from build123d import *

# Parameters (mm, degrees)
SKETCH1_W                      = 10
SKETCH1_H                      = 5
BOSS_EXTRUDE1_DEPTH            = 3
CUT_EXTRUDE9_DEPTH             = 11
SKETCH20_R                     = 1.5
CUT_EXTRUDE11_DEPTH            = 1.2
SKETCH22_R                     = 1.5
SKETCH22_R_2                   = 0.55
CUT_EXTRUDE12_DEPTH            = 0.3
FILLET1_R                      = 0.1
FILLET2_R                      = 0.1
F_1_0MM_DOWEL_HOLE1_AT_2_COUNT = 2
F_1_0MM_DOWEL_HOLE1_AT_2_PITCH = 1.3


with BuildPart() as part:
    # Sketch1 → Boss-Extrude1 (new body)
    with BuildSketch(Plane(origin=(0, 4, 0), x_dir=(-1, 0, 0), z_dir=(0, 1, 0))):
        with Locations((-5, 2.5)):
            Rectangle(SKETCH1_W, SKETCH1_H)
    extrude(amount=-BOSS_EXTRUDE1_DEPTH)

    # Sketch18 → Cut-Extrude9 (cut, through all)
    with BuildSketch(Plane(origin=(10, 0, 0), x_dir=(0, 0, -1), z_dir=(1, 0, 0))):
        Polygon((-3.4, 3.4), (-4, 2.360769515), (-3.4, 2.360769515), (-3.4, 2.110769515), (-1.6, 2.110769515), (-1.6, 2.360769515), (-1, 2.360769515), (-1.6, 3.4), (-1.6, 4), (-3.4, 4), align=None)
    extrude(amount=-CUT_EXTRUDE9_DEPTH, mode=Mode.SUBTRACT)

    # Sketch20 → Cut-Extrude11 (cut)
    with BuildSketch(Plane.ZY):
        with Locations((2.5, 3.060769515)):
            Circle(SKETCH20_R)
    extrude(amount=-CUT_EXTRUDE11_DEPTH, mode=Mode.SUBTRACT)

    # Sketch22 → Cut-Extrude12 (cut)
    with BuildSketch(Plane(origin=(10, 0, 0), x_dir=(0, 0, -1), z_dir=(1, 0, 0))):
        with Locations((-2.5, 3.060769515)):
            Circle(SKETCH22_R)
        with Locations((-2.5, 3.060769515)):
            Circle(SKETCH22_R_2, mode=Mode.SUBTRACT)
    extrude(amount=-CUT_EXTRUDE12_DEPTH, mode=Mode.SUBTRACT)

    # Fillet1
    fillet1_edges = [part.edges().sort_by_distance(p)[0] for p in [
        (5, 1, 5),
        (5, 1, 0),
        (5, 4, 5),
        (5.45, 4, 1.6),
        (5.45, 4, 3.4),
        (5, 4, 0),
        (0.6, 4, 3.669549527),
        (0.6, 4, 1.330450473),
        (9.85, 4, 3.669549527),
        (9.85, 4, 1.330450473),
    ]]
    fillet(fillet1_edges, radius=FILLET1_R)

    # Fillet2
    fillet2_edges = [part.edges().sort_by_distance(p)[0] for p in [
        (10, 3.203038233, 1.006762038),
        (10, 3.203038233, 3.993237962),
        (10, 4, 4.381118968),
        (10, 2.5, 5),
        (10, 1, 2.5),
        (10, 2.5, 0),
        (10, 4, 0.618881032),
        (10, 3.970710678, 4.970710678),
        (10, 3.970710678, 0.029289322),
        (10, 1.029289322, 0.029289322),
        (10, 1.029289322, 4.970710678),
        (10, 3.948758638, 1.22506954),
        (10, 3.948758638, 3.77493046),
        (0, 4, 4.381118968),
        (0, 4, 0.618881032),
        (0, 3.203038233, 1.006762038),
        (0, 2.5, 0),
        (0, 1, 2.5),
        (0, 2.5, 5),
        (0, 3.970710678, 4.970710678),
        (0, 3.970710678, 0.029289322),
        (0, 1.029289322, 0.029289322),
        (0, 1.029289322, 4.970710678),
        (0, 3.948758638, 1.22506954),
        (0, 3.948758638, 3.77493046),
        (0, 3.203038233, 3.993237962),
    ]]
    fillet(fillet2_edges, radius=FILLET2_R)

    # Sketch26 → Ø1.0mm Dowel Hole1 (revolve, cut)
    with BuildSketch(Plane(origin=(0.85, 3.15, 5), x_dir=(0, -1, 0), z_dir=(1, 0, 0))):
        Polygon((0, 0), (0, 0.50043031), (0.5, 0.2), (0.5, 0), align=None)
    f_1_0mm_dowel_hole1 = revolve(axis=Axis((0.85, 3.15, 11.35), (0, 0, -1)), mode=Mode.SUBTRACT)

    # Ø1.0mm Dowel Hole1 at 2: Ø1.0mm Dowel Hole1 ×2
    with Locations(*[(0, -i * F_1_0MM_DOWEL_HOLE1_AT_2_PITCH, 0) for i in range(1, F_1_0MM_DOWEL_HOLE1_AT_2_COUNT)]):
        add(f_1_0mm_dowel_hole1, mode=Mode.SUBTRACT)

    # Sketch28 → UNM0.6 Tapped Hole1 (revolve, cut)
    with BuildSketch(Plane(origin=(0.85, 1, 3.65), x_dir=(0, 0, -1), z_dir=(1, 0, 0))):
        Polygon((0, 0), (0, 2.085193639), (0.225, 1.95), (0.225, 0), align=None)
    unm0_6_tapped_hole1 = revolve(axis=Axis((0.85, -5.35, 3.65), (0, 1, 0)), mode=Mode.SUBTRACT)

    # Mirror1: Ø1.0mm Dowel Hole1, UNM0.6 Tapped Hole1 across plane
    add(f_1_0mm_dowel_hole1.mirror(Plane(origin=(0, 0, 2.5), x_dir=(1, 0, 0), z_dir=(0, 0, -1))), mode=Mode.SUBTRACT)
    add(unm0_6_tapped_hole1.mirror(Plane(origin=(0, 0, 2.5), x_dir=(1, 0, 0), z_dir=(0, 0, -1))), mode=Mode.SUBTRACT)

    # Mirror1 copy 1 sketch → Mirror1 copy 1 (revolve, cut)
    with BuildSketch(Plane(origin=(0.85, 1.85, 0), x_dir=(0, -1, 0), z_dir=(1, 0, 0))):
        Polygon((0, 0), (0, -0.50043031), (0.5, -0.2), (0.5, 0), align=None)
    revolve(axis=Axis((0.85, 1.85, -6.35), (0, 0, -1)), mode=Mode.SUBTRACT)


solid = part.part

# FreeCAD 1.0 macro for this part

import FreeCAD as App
import Part
import Sketcher
from FreeCAD import Vector
Q = App.Units.Quantity


def edges_at(feature, points):
    """Names of the edges that pass closest to the given points."""
    edges = feature.Shape.Edges
    near = lambda p: min(range(len(edges)), key=lambda i: edges[i].distToShape(Part.Vertex(*p))[0])
    return sorted({f"Edge{near(p) + 1}" for p in points})


def add_polygon(sketch, points):
    """Adds a closed chain of lines whose ends are joined by coincident constraints."""
    first, n = sketch.GeometryCount, len(points)
    for a, b in zip(points, points[1:] + points[:1]):
        sketch.addGeometry(Part.LineSegment(App.Vector(*a, 0), App.Vector(*b, 0)), False)
    for i in range(n):
        sketch.addConstraint(Sketcher.Constraint("Coincident", first + i, 2, first + (i + 1) % n, 1))

doc = App.newDocument("Part")
body = doc.addObject("PartDesign::Body", "Body")

# Sketch on XZ plane
sketch1 = body.newObject("Sketcher::SketchObject", "Sketch")
sketch1.AttachmentSupport = (doc.getObject("XZ_Plane"), [""])
sketch1.MapMode = "FlatFace"
sketch1.AttachmentOffset = App.Placement(Vector(0, 0, -4), App.Rotation())
add_polygon(sketch1, [(10, 5), (10, 0), (0, 0), (0, 5)])  # lines 0-3
sketch1.addConstraint(Sketcher.Constraint("Vertical", 0))
sketch1.addConstraint(Sketcher.Constraint("Horizontal", 1))
sketch1.addConstraint(Sketcher.Constraint("Vertical", 2))
sketch1.addConstraint(Sketcher.Constraint("Horizontal", 3))
sketch1.addConstraint(Sketcher.Constraint("Coincident", 1, 2, -1, 1))
sketch1.addConstraint(Sketcher.Constraint("DistanceX", 1, 2, 1, 1, 10.0))
sketch1.addConstraint(Sketcher.Constraint("DistanceY", 0, 2, 0, 1, 5.0))
pad1 = body.newObject("PartDesign::Pad", "Pad")
pad1.Profile = sketch1
pad1.Length = 3

# Sketch on YZ plane
sketch2 = body.newObject("Sketcher::SketchObject", "Sketch001")
sketch2.AttachmentSupport = (doc.getObject("YZ_Plane"), [""])
sketch2.MapMode = "FlatFace"
sketch2.AttachmentOffset = App.Placement(Vector(0, 0, 10), App.Rotation())
add_polygon(sketch2, [(3.4, 3.4), (2.36077, 4), (2.36077, 3.4), (2.11077, 3.4), (2.11077, 1.6), (2.36077, 1.6), (2.36077, 1), (3.4, 1.6), (4, 1.6), (4, 3.4)])  # lines 0-9
sketch2.addConstraint(Sketcher.Constraint("Vertical", 1))
sketch2.addConstraint(Sketcher.Constraint("Horizontal", 2))
sketch2.addConstraint(Sketcher.Constraint("Vertical", 3))
sketch2.addConstraint(Sketcher.Constraint("Horizontal", 4))
sketch2.addConstraint(Sketcher.Constraint("Vertical", 5))
sketch2.addConstraint(Sketcher.Constraint("Horizontal", 7))
sketch2.addConstraint(Sketcher.Constraint("Vertical", 8))
sketch2.addConstraint(Sketcher.Constraint("Horizontal", 9))
sketch2.addConstraint(Sketcher.Constraint("Horizontal", 4, 2, 6, 2))
sketch2.addConstraint(Sketcher.Constraint("Horizontal", 2, 2, 8, 2))
sketch2.addConstraint(Sketcher.Constraint("Vertical", 1, 2, 4, 2))
sketch2.addConstraint(Sketcher.Constraint("Vertical", 6, 2, 9, 2))
sketch2.addConstraint(Sketcher.Constraint("Equal", 9, 1))
sketch2.addConstraint(Sketcher.Constraint("Equal", 1, 5))
sketch2.addConstraint(Sketcher.Constraint("Angle", 0, Q("150 deg")))
sketch2.addConstraint(Sketcher.Constraint("DistanceX", 7, 1, 7, 2, 0.6))
sketch2.addConstraint(Sketcher.Constraint("DistanceY", 3, 2, 3, 1, 1.8))
sketch2.addConstraint(Sketcher.Constraint("DistanceY", -1, 1, 0, 2, 4.0))
sketch2.addConstraint(Sketcher.Constraint("DistanceX", -1, 1, 7, 2, 4.0))
sketch2.addConstraint(Sketcher.Constraint("DistanceX", 2, 2, 2, 1, 0.25))
pocket1 = body.newObject("PartDesign::Pocket", "Pocket")
pocket1.Profile = sketch2
pocket1.Type = "ThroughAll"

# Sketch on YZ plane
sketch3 = body.newObject("Sketcher::SketchObject", "Sketch002")
sketch3.AttachmentSupport = (doc.getObject("YZ_Plane"), [""])
sketch3.MapMode = "FlatFace"
sketch3.addGeometry(Part.Circle(Vector(3.06077, 2.5, 0), Vector(0, 0, 1), 1.5), False)
sketch3.addConstraint(Sketcher.Constraint("Diameter", 0, 3.0))
sketch3.addConstraint(Sketcher.Constraint("DistanceY", -1, 1, 0, 3, 2.5))
sketch3.addConstraint(Sketcher.Constraint("DistanceX", -1, 1, 0, 3, 3.06077))
pocket2 = body.newObject("PartDesign::Pocket", "Pocket001")
pocket2.Profile = sketch3
pocket2.Length = 1.2
pocket2.Reversed = True

# Sketch on YZ plane
sketch4 = body.newObject("Sketcher::SketchObject", "Sketch003")
sketch4.AttachmentSupport = (doc.getObject("YZ_Plane"), [""])
sketch4.MapMode = "FlatFace"
sketch4.AttachmentOffset = App.Placement(Vector(0, 0, 10), App.Rotation())
sketch4.addGeometry(Part.Circle(Vector(3.06077, 2.5, 0), Vector(0, 0, 1), 1.5), False)
sketch4.addGeometry(Part.Circle(Vector(3.06077, 2.5, 0), Vector(0, 0, 1), 0.55), False)
sketch4.addConstraint(Sketcher.Constraint("Coincident", 1, 3, 0, 3))
sketch4.addConstraint(Sketcher.Constraint("Diameter", 0, 3.0))
sketch4.addConstraint(Sketcher.Constraint("Diameter", 1, 1.1))
sketch4.addConstraint(Sketcher.Constraint("DistanceY", -1, 1, 0, 3, 2.5))
sketch4.addConstraint(Sketcher.Constraint("DistanceX", -1, 1, 0, 3, 3.06077))
pocket3 = body.newObject("PartDesign::Pocket", "Pocket002")
pocket3.Profile = sketch4
pocket3.Length = 0.3
doc.recompute()

fillet = body.newObject("PartDesign::Fillet", "Fillet")
fillet.Base = (pocket3, edges_at(pocket3, [
    (5, 1, 5),
    (5, 1, 0),
    (5, 4, 5),
    (5.45, 4, 1.6),
    (5.45, 4, 3.4),
    (5, 4, 0),
    (0.6, 4, 3.67),
    (0.6, 4, 1.33),
    (9.85, 4, 3.67),
    (9.85, 4, 1.33),
]))
fillet.Radius = 0.1
doc.recompute()

fillet2 = body.newObject("PartDesign::Fillet", "Fillet001")
fillet2.Base = (fillet, edges_at(fillet, [
    (10, 3.203, 1.007),
    (10, 3.203, 3.993),
    (10, 4, 4.381),
    (10, 2.5, 5),
    (10, 1, 2.5),
    (10, 2.5, 0),
    (10, 4, 0.619),
    (10, 3.971, 4.971),
    (10, 3.971, 0.029),
    (10, 1.029, 0.029),
    (10, 1.029, 4.971),
    (10, 3.949, 1.225),
    (10, 3.949, 3.775),
    (0, 4, 4.381),
    (0, 4, 0.619),
    (0, 3.203, 1.007),
    (0, 2.5, 0),
    (0, 1, 2.5),
    (0, 2.5, 5),
    (0, 3.971, 4.971),
    (0, 3.971, 0.029),
    (0, 1.029, 0.029),
    (0, 1.029, 4.971),
    (0, 3.949, 1.225),
    (0, 3.949, 3.775),
    (0, 3.203, 3.993),
]))
fillet2.Radius = 0.1

# Sketch on YZ plane
sketch5 = body.newObject("Sketcher::SketchObject", "Sketch004")
sketch5.AttachmentSupport = (doc.getObject("YZ_Plane"), [""])
sketch5.MapMode = "FlatFace"
sketch5.AttachmentOffset = App.Placement(Vector(0, 0, 0.85), App.Rotation())
add_polygon(sketch5, [(3.15, 4.49957), (3.15, 5), (2.65, 5), (2.65, 4.8)])  # lines 0-3
sketch5.addGeometry(Part.LineSegment(Vector(3.15, 5, 0), Vector(3.15, 4.49957, 0)), True)  # axis
sketch5.addConstraint(Sketcher.Constraint("Vertical", 0))
sketch5.addConstraint(Sketcher.Constraint("Horizontal", 1))
sketch5.addConstraint(Sketcher.Constraint("Vertical", 2))
sketch5.addConstraint(Sketcher.Constraint("Vertical", 4))
sketch5.addConstraint(Sketcher.Constraint("Coincident", 4, 1, 0, 2))
sketch5.addConstraint(Sketcher.Constraint("Equal", 0, 4))
sketch5.addConstraint(Sketcher.Constraint("Angle", 3, Q("-31 deg")))
sketch5.addConstraint(Sketcher.Constraint("DistanceX", 1, 2, 1, 1, 0.5))
sketch5.addConstraint(Sketcher.Constraint("DistanceY", 2, 2, 2, 1, 0.2))
sketch5.addConstraint(Sketcher.Constraint("DistanceY", -1, 1, 0, 2, 5.0))
sketch5.addConstraint(Sketcher.Constraint("DistanceX", -1, 1, 0, 2, 3.15))
groove = body.newObject("PartDesign::Groove", "Groove")
groove.Profile = sketch5
groove.ReferenceAxis = (sketch5, ["Axis0"])
groove.Angle = 360
doc.recompute()

linearpattern = body.newObject("PartDesign::LinearPattern", "LinearPattern")
linearpattern.Originals = [groove]
linearpattern.Direction = (doc.getObject("Y_Axis"), [""])
linearpattern.Mode = "offset"
linearpattern.Offset = 1.3
linearpattern.Occurrences = 2
linearpattern.Reversed = True
body.Tip = linearpattern

# Sketch on YZ plane
sketch6 = body.newObject("Sketcher::SketchObject", "Sketch005")
sketch6.AttachmentSupport = (doc.getObject("YZ_Plane"), [""])
sketch6.MapMode = "FlatFace"
sketch6.AttachmentOffset = App.Placement(Vector(0, 0, 0.85), App.Rotation())
add_polygon(sketch6, [(3.085194, 3.65), (1, 3.65), (1, 3.425), (2.95, 3.425)])  # lines 0-3
sketch6.addGeometry(Part.LineSegment(Vector(1, 3.65, 0), Vector(3.085194, 3.65, 0)), True)  # axis
sketch6.addConstraint(Sketcher.Constraint("Horizontal", 0))
sketch6.addConstraint(Sketcher.Constraint("Vertical", 1))
sketch6.addConstraint(Sketcher.Constraint("Horizontal", 2))
sketch6.addConstraint(Sketcher.Constraint("Horizontal", 4))
sketch6.addConstraint(Sketcher.Constraint("Coincident", 4, 1, 0, 2))
sketch6.addConstraint(Sketcher.Constraint("Equal", 0, 4))
sketch6.addConstraint(Sketcher.Constraint("Angle", 3, Q("59 deg")))
sketch6.addConstraint(Sketcher.Constraint("DistanceX", -1, 1, 0, 2, 1.0))
sketch6.addConstraint(Sketcher.Constraint("DistanceX", 2, 1, 2, 2, 1.95))
sketch6.addConstraint(Sketcher.Constraint("DistanceY", 1, 2, 1, 1, 0.225))
sketch6.addConstraint(Sketcher.Constraint("DistanceY", -1, 1, 0, 2, 3.65))
groove2 = body.newObject("PartDesign::Groove", "Groove001")
groove2.Profile = sketch6
groove2.ReferenceAxis = (sketch6, ["Axis0"])
groove2.Angle = 360
doc.recompute()

datumplane = body.newObject("PartDesign::Plane", "DatumPlane")
datumplane.AttachmentSupport = (doc.getObject("XY_Plane"), [""])
datumplane.MapMode = "FlatFace"
datumplane.AttachmentOffset = App.Placement(Vector(0, 0, 2.5), App.Rotation())
mirrored = body.newObject("PartDesign::Mirrored", "Mirrored")
mirrored.Originals = [groove, groove2]
mirrored.MirrorPlane = (datumplane, [""])
body.Tip = mirrored

# Sketch on YZ plane
sketch7 = body.newObject("Sketcher::SketchObject", "Sketch006")
sketch7.AttachmentSupport = (doc.getObject("YZ_Plane"), [""])
sketch7.MapMode = "FlatFace"
sketch7.AttachmentOffset = App.Placement(Vector(0, 0, 0.85), App.Rotation())
add_polygon(sketch7, [(1.85, 0), (1.85, 0.50043), (1.35, 0.2), (1.35, 0)])  # lines 0-3
sketch7.addGeometry(Part.LineSegment(Vector(1.85, 0.50043, 0), Vector(1.85, 0, 0)), True)  # axis
sketch7.addConstraint(Sketcher.Constraint("Vertical", 0))
sketch7.addConstraint(Sketcher.Constraint("Vertical", 2))
sketch7.addConstraint(Sketcher.Constraint("Horizontal", 3))
sketch7.addConstraint(Sketcher.Constraint("Vertical", 4))
sketch7.addConstraint(Sketcher.Constraint("Coincident", 4, 1, 0, 2))
sketch7.addConstraint(Sketcher.Constraint("PointOnObject", 2, 2, -1))
sketch7.addConstraint(Sketcher.Constraint("PointOnObject", 4, 2, -1))
sketch7.addConstraint(Sketcher.Constraint("Angle", 1, Q("-149 deg")))
sketch7.addConstraint(Sketcher.Constraint("DistanceX", 3, 1, 3, 2, 0.5))
sketch7.addConstraint(Sketcher.Constraint("DistanceY", 2, 2, 2, 1, 0.2))
sketch7.addConstraint(Sketcher.Constraint("DistanceX", -1, 1, 0, 2, 1.85))
groove3 = body.newObject("PartDesign::Groove", "Groove002")
groove3.Profile = sketch7
groove3.ReferenceAxis = (sketch7, ["Axis0"])
groove3.Angle = 360

doc.recompute()
